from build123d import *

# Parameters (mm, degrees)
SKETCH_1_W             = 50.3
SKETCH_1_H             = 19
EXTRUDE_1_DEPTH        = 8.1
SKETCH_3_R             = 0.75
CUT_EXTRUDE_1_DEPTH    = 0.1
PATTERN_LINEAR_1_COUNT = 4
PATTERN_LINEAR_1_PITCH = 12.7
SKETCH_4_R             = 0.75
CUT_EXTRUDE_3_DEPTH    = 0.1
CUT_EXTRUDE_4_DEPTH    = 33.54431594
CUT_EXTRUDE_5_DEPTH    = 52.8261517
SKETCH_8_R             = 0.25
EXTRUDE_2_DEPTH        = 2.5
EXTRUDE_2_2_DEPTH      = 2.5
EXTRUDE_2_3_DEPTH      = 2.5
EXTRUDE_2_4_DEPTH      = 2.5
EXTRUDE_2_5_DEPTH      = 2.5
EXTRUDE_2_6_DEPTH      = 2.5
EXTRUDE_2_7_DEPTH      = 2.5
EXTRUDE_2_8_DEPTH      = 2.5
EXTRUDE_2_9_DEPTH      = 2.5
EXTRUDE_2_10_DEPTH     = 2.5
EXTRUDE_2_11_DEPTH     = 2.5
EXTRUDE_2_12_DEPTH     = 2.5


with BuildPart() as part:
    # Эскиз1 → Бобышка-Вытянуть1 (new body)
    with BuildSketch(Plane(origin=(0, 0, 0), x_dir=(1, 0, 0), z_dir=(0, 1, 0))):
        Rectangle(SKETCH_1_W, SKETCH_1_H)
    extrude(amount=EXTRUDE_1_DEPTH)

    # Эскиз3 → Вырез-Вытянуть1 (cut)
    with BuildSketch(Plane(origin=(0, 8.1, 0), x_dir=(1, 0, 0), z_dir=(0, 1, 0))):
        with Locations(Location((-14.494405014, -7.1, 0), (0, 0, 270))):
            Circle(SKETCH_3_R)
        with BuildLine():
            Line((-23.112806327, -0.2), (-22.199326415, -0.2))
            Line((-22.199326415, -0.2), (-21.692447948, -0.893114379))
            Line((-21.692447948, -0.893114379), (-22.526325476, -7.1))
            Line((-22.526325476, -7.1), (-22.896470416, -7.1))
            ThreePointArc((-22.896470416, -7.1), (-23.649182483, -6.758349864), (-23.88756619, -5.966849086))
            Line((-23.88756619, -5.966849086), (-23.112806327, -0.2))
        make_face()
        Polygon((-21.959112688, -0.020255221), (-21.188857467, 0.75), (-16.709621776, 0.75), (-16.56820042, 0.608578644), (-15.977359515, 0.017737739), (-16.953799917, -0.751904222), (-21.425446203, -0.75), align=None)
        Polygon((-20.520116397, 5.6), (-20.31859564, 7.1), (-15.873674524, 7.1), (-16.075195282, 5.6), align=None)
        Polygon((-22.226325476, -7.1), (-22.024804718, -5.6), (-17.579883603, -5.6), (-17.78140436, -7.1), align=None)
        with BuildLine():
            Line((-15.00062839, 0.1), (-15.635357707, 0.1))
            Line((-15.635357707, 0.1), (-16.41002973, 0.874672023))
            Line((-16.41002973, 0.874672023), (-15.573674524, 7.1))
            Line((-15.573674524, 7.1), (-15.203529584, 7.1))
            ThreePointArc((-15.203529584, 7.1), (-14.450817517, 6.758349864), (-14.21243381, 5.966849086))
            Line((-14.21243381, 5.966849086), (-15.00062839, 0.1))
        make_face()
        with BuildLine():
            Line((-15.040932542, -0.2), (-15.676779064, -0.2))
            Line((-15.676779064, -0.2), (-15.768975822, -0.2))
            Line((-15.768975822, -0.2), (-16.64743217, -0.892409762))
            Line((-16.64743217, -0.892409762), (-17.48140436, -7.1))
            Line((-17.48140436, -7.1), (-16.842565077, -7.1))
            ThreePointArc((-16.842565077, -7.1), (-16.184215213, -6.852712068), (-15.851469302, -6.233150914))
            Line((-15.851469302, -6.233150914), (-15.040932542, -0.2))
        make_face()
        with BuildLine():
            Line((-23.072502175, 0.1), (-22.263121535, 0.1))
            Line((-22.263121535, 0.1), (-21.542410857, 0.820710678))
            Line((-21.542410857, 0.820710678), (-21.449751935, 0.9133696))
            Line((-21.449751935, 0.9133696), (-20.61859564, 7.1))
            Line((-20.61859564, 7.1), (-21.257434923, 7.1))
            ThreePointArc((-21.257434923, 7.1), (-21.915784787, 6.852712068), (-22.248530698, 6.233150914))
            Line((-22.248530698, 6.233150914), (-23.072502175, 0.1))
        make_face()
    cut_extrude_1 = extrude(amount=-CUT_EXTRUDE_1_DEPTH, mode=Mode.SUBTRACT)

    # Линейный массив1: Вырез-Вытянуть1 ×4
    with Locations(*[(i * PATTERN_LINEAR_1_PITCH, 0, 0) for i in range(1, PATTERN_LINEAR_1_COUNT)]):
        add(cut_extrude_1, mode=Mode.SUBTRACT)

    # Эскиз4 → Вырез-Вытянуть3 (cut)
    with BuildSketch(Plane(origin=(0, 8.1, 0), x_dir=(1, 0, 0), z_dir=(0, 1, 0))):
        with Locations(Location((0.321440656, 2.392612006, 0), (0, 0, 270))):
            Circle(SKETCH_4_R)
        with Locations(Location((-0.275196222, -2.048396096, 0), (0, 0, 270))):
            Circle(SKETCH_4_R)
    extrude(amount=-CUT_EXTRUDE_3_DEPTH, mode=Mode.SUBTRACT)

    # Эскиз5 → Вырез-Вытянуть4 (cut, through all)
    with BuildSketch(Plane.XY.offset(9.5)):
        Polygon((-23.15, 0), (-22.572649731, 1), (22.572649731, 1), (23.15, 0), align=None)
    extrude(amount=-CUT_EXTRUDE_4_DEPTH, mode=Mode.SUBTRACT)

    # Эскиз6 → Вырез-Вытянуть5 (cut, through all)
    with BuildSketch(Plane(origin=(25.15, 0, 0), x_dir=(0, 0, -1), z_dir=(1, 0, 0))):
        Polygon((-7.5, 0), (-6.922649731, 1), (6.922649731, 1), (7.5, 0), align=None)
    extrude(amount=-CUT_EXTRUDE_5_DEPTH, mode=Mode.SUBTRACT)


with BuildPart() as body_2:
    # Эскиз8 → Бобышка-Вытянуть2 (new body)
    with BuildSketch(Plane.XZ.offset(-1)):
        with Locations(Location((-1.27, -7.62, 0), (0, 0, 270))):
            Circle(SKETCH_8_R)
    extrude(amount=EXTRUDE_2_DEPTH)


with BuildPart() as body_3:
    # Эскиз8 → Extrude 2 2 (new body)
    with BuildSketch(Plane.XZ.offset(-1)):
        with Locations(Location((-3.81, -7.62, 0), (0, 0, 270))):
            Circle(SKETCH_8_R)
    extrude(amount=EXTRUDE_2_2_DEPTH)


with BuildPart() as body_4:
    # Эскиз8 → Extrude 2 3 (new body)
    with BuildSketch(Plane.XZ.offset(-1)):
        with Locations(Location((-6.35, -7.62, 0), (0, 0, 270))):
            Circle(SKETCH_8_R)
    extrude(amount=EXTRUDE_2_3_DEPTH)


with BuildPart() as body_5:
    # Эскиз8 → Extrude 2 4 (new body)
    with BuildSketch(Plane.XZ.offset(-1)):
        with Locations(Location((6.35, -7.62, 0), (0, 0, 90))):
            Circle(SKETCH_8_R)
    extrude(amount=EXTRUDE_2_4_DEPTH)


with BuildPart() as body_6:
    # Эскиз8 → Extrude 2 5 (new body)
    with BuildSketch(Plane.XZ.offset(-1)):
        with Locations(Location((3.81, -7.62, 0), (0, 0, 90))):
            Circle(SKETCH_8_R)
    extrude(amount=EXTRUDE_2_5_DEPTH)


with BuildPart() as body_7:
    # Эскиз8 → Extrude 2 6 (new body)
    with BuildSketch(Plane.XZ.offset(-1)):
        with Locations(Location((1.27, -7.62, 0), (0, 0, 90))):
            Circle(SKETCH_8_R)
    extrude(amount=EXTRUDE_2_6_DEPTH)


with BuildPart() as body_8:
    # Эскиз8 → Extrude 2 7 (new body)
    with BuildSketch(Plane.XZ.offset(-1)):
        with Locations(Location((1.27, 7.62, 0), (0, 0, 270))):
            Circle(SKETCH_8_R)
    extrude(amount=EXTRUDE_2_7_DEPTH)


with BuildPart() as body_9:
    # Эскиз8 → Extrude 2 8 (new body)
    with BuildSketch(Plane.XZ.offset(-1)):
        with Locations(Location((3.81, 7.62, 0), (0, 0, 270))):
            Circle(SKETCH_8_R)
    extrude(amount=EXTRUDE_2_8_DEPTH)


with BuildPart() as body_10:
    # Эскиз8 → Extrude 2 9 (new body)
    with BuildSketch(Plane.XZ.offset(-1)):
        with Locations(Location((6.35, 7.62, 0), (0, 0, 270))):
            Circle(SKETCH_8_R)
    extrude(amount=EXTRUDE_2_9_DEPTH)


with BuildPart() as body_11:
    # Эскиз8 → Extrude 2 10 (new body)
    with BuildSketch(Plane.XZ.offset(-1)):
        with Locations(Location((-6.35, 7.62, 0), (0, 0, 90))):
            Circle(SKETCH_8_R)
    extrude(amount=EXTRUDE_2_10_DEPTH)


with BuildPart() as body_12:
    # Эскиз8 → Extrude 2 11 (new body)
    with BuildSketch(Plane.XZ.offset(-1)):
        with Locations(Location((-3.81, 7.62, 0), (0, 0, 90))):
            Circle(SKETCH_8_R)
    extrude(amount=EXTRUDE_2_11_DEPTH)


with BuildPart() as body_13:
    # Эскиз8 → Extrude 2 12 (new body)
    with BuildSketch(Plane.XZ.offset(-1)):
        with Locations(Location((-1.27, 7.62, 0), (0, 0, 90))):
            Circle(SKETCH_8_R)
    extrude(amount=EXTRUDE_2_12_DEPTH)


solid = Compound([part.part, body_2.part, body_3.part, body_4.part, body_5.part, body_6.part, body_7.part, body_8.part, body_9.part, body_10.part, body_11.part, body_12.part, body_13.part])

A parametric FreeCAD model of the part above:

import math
import FreeCAD as App
import Part
import Sketcher
from FreeCAD import Vector
Q = App.Units.Quantity


def add_polygon(sketch, points):
    """Adds a closed chain of lines whose ends are joined by coincident constraints."""
    first, n = sketch.GeometryCount, len(points)
    for a, b in zip(points, points[1:] + points[:1]):
        sketch.addGeometry(Part.LineSegment(App.Vector(*a, 0), App.Vector(*b, 0)), False)
    for i in range(n):
        sketch.addConstraint(Sketcher.Constraint("Coincident", first + i, 2, first + (i + 1) % n, 1))

doc = App.newDocument("Part")
params = doc.addObject("Spreadsheet::Sheet", "Params")
for row, (alias, value) in enumerate([
    ("sketch1_height", "19 mm"),
    ("sketch1_width", "50.3 mm"),
    ("pad1_length", "8.1 mm"),
    ("sketch2_radius", "1 mm"),
    ("sketch2_diameter", "1.5 mm"),
    ("pocket1_length", "0.1 mm"),
    ("linearpattern_pitch", "12.7 mm"),
    ("sketch3_diameter", "1.5 mm"),
    ("pocket2_length", "0.1 mm"),
    ("sketch4_width", "46.3 mm"),
    ("sketch5_height", "15 mm"),
    ("sketch6_diameter", "0.5 mm"),
    ("pad2_length", "2.5 mm"),
    ("sketch7_diameter", "0.5 mm"),
    ("pad3_length", "2.5 mm"),
    ("sketch8_diameter", "0.5 mm"),
    ("pad4_length", "2.5 mm"),
    ("sketch9_diameter", "0.5 mm"),
    ("pad5_length", "2.5 mm"),
    ("sketch10_diameter", "0.5 mm"),
    ("pad6_length", "2.5 mm"),
    ("sketch11_diameter", "0.5 mm"),
    ("pad7_length", "2.5 mm"),
    ("sketch12_diameter", "0.5 mm"),
    ("pad8_length", "2.5 mm"),
    ("sketch13_diameter", "0.5 mm"),
    ("pad9_length", "2.5 mm"),
    ("sketch14_diameter", "0.5 mm"),
    ("pad10_length", "2.5 mm"),
    ("sketch15_diameter", "0.5 mm"),
    ("pad11_length", "2.5 mm"),
    ("sketch16_diameter", "0.5 mm"),
    ("pad12_length", "2.5 mm"),
    ("sketch17_diameter", "0.5 mm"),
    ("pad13_length", "2.5 mm"),
], start=1):
    params.set(f"A{row}", alias)
    params.set(f"B{row}", "=" + value)
    params.setAlias(f"B{row}", alias)

body = doc.addObject("PartDesign::Body", "Body")

# Sketch on XZ plane
sketch1 = body.newObject("Sketcher::SketchObject", "Sketch")
sketch1.AttachmentSupport = (doc.getObject("XZ_Plane"), [""])
sketch1.MapMode = "FlatFace"
add_polygon(sketch1, [(-25.15, -9.5), (-25.15, 9.5), (25.15, 9.5), (25.15, -9.5)])  # lines 0-3
sketch1.addConstraint([
    Sketcher.Constraint("Vertical", 0),
    Sketcher.Constraint("Horizontal", 1),
    Sketcher.Constraint("Vertical", 2),
    Sketcher.Constraint("Horizontal", 3),
    Sketcher.Constraint("Symmetric", 0, 2, 2, 2, -1, 1),
    Sketcher.Constraint("DistanceY", 0, 1, 0, 2, Q("19 mm")),
    Sketcher.Constraint("DistanceX", 1, 1, 1, 2, Q("50.3 mm")),
])
sketch1.setExpression("Constraints[9]", "Params.sketch1_height")
sketch1.setExpression("Constraints[10]", "Params.sketch1_width")
pad1 = body.newObject("PartDesign::Pad", "Pad")
pad1.Profile = sketch1
pad1.setExpression("Length", "Params.pad1_length")
pad1.Reversed = True

# Sketch on XZ plane
sketch2 = body.newObject("Sketcher::SketchObject", "Sketch001")
sketch2.AttachmentSupport = (doc.getObject("XZ_Plane"), [""])
sketch2.MapMode = "FlatFace"
sketch2.AttachmentOffset = App.Placement(Vector(0, 0, -8.1), App.Rotation())
sketch2.addGeometry(Part.Circle(Vector(-14.494405, 7.1, 0), Vector(0, 0, 1), 0.75), False)  # 0
sketch2.addGeometry(Part.LineSegment(Vector(-22.199326, 0.2, 0), Vector(-23.112806, 0.2, 0)), False)  # 1
sketch2.addGeometry(Part.LineSegment(Vector(-23.112806, 0.2, 0), Vector(-23.887566, 5.966849, 0)), False)  # 2
sketch2.addGeometry(Part.ArcOfCircle(Part.Circle(Vector(-22.89647, 6.1, 0), Vector(0, 0, 1), 1), math.radians(90), math.radians(187.65171)), False)  # 3
sketch2.addGeometry(Part.LineSegment(Vector(-22.89647, 7.1, 0), Vector(-22.526325, 7.1, 0)), False)  # 4
sketch2.addGeometry(Part.LineSegment(Vector(-22.526325, 7.1, 0), Vector(-21.692448, 0.893114, 0)), False)  # 5
sketch2.addGeometry(Part.LineSegment(Vector(-21.692448, 0.893114, 0), Vector(-22.199326, 0.2, 0)), False)  # 6
add_polygon(sketch2, [(-21.188857, -0.75), (-21.959113, 0.020255), (-21.425446, 0.75), (-16.9538, 0.751904), (-15.97736, -0.017738), (-16.709622, -0.75)])  # lines 7-12
add_polygon(sketch2, [(-20.318596, -7.1), (-20.520116, -5.6), (-16.075195, -5.6), (-15.873675, -7.1)])  # lines 13-16
add_polygon(sketch2, [(-22.024805, 5.6), (-22.226325, 7.1), (-17.781404, 7.1), (-17.579884, 5.6)])  # lines 17-20
sketch2.addGeometry(Part.LineSegment(Vector(-15.635358, -0.1, 0), Vector(-15.000628, -0.1, 0)), False)  # 21
sketch2.addGeometry(Part.LineSegment(Vector(-15.000628, -0.1, 0), Vector(-14.212434, -5.966849, 0)), False)  # 22
sketch2.addGeometry(Part.ArcOfCircle(Part.Circle(Vector(-15.20353, -6.1, 0), Vector(0, 0, 1), 1), math.radians(-90), math.radians(7.65171)), False)  # 23
sketch2.addGeometry(Part.LineSegment(Vector(-15.20353, -7.1, 0), Vector(-15.573675, -7.1, 0)), False)  # 24
sketch2.addGeometry(Part.LineSegment(Vector(-15.573675, -7.1, 0), Vector(-16.41003, -0.874672, 0)), False)  # 25
sketch2.addGeometry(Part.LineSegment(Vector(-16.41003, -0.874672, 0), Vector(-15.635358, -0.1, 0)), False)  # 26
sketch2.addGeometry(Part.LineSegment(Vector(-15.040933, 0.2, 0), Vector(-15.768976, 0.2, 0)), False)  # 27
sketch2.addGeometry(Part.LineSegment(Vector(-15.768976, 0.2, 0), Vector(-16.647432, 0.89241, 0)), False)  # 28
sketch2.addGeometry(Part.LineSegment(Vector(-16.647432, 0.89241, 0), Vector(-17.481404, 7.1, 0)), False)  # 29
sketch2.addGeometry(Part.LineSegment(Vector(-17.481404, 7.1, 0), Vector(-16.842565, 7.1, 0)), False)  # 30
sketch2.addGeometry(Part.ArcOfCircle(Part.Circle(Vector(-16.842565, 6.1, 0), Vector(0, 0, 1), 1), math.radians(7.65171), math.radians(90)), False)  # 31
sketch2.addGeometry(Part.LineSegment(Vector(-15.851469, 6.233151, 0), Vector(-15.040933, 0.2, 0)), False)  # 32
sketch2.addGeometry(Part.LineSegment(Vector(-23.072502, -0.1, 0), Vector(-22.263122, -0.1, 0)), False)  # 33
sketch2.addGeometry(Part.LineSegment(Vector(-22.263122, -0.1, 0), Vector(-21.449752, -0.91337, 0)), False)  # 34
sketch2.addGeometry(Part.LineSegment(Vector(-21.449752, -0.91337, 0), Vector(-20.618596, -7.1, 0)), False)  # 35
sketch2.addGeometry(Part.LineSegment(Vector(-20.618596, -7.1, 0), Vector(-21.257435, -7.1, 0)), False)  # 36
sketch2.addGeometry(Part.ArcOfCircle(Part.Circle(Vector(-21.257435, -6.1, 0), Vector(0, 0, 1), 1), math.radians(-172.34829), math.radians(-90)), False)  # 37
sketch2.addGeometry(Part.LineSegment(Vector(-22.248531, -6.233151, 0), Vector(-23.072502, -0.1, 0)), False)  # 38
sketch2.addConstraint([
    Sketcher.Constraint("Coincident", 1, 2, 2, 1),
    Sketcher.Constraint("Tangent", 2, 2, 3, 2),
    Sketcher.Constraint("Tangent", 3, 1, 4, 1),
    Sketcher.Constraint("Coincident", 4, 2, 5, 1),
    Sketcher.Constraint("Coincident", 5, 2, 6, 1),
    Sketcher.Constraint("Coincident", 6, 2, 1, 1),
    Sketcher.Constraint("Coincident", 21, 2, 22, 1),
    Sketcher.Constraint("Tangent", 22, 2, 23, 2),
    Sketcher.Constraint("Tangent", 23, 1, 24, 1),
    Sketcher.Constraint("Coincident", 24, 2, 25, 1),
    Sketcher.Constraint("Coincident", 25, 2, 26, 1),
    Sketcher.Constraint("Coincident", 26, 2, 21, 1),
    Sketcher.Constraint("Coincident", 27, 2, 28, 1),
    Sketcher.Constraint("Coincident", 28, 2, 29, 1),
    Sketcher.Constraint("Coincident", 29, 2, 30, 1),
    Sketcher.Constraint("Tangent", 30, 2, 31, 2),
    Sketcher.Constraint("Tangent", 31, 1, 32, 1),
    Sketcher.Constraint("Coincident", 32, 2, 27, 1),
    Sketcher.Constraint("Coincident", 33, 2, 34, 1),
    Sketcher.Constraint("Coincident", 34, 2, 35, 1),
    Sketcher.Constraint("Coincident", 35, 2, 36, 1),
    Sketcher.Constraint("Tangent", 36, 2, 37, 2),
    Sketcher.Constraint("Tangent", 37, 1, 38, 1),
    Sketcher.Constraint("Coincident", 38, 2, 33, 1),
    Sketcher.Constraint("Horizontal", 1),
    Sketcher.Constraint("Horizontal", 4),
    Sketcher.Constraint("Horizontal", 12),
    Sketcher.Constraint("Horizontal", 14),
    Sketcher.Constraint("Horizontal", 16),
    Sketcher.Constraint("Horizontal", 18),
    Sketcher.Constraint("Horizontal", 20),
    Sketcher.Constraint("Horizontal", 21),
    Sketcher.Constraint("Horizontal", 24),
    Sketcher.Constraint("Horizontal", 27),
    Sketcher.Constraint("Horizontal", 30),
    Sketcher.Constraint("Horizontal", 33),
    Sketcher.Constraint("Horizontal", 36),
    Sketcher.Constraint("Equal", 3, 23),
    Sketcher.Constraint("Equal", 23, 31),
    Sketcher.Constraint("Equal", 31, 37),
    Sketcher.Constraint("Parallel", 2, 5),
    Sketcher.Constraint("Parallel", 6, 8),
    Sketcher.Constraint("Perpendicular", 7, 11),
    Sketcher.Constraint("Parallel", 5, 13),
    Sketcher.Constraint("Parallel", 13, 15),
    Sketcher.Constraint("Parallel", 15, 17),
    Sketcher.Constraint("Parallel", 17, 19),
    Sketcher.Constraint("Parallel", 19, 22),
    Sketcher.Constraint("Parallel", 22, 25),
    Sketcher.Constraint("Parallel", 11, 26),
    Sketcher.Constraint("Parallel", 10, 28),
    Sketcher.Constraint("Parallel", 25, 29),
    Sketcher.Constraint("Parallel", 29, 32),
    Sketcher.Constraint("Perpendicular", 26, 34),
    Sketcher.Constraint("Parallel", 32, 35),
    Sketcher.Constraint("Parallel", 35, 38),
    Sketcher.Constraint("Horizontal", 3, 3, 31, 3),
    Sketcher.Constraint("Horizontal", 23, 3, 37, 3),
    Sketcher.Constraint("Horizontal", 0, 3, 3, 1),
    Sketcher.Constraint("Horizontal", 4, 2, 17, 2),
    Sketcher.Constraint("Horizontal", 16, 2, 23, 1),
    Sketcher.Constraint("Horizontal", 6, 2, 27, 2),
    Sketcher.Constraint("Horizontal", 26, 2, 33, 2),
    Sketcher.Constraint("Equal", 16, 18),
    Sketcher.Constraint("Equal", 4, 24),
    Sketcher.Constraint("Equal", 30, 36),
    Sketcher.Constraint("Equal", 15, 17),
    Sketcher.Constraint("Radius", 3, Q("1 mm")),
    Sketcher.Constraint("Diameter", 0, Q("1.5 mm")),
    Sketcher.Constraint("Angle", 7, Q("135 deg")),
    Sketcher.Constraint("DistanceY", 23, 3, 21, 2, Q("6 mm")),
    Sketcher.Constraint("DistanceY", -1, 1, 0, 3, Q("7.1 mm")),
    Sketcher.Constraint("DistanceY", 23, 3, -1, 1, Q("6.1 mm")),
    Sketcher.Constraint("DistanceY", -1, 1, 1, 2, Q("0.2 mm")),
    Sketcher.Constraint("DistanceY", 13, 2, -1, 1, Q("5.6 mm")),
    Sketcher.Constraint("DistanceY", 11, 2, 8, 2, Q("1.5 mm")),
    Sketcher.Constraint("DistanceX", 4, 2, 17, 2, Q("0.3 mm")),
    Sketcher.Constraint("DistanceX", 15, 2, 24, 2, Q("0.3 mm")),
    Sketcher.Constraint("DistanceX", 18, 2, 29, 2, Q("0.3 mm")),
    Sketcher.Constraint("DistanceX", 35, 2, 16, 2, Q("0.3 mm")),
    Sketcher.Constraint("DistanceY", -1, 1, 8, 2, Q("0.75 mm")),
    Sketcher.Constraint("DistanceX", 2, 2, 31, 3, Q("7.045001 mm")),
    Sketcher.Constraint("DistanceX", 5, 2, 8, 2, Q("0.267002 mm")),
    Sketcher.Constraint("DistanceX", 18, 2, 0, 3, Q("3.286999 mm")),
    Sketcher.Constraint("DistanceX", 10, 2, 26, 2, Q("0.342002 mm")),
    Sketcher.Constraint("DistanceX", 1, 2, 1, 1, Q("0.91348 mm")),
    Sketcher.Constraint("DistanceX", 14, 1, 14, 2, Q("4.444921 mm")),
    Sketcher.Constraint("DistanceX", 21, 1, 21, 2, Q("0.634729 mm")),
    Sketcher.Constraint("DistanceX", 30, 1, 30, 2, Q("0.638839 mm")),
    Sketcher.Constraint("DistanceX", 33, 1, 33, 2, Q("0.809381 mm")),
    Sketcher.Constraint("DistanceX", 9, 2, -1, 1, Q("16.9538 mm")),
    Sketcher.Constraint("DistanceX", 1, 2, 0, 3, Q("8.618401 mm")),
    Sketcher.Constraint("Distance", 5, Q("6.26265 mm")),
    Sketcher.Constraint("Distance", 8, Q("0.904062 mm")),
    Sketcher.Constraint("Distance", 29, Q("6.263361 mm")),
    Sketcher.Constraint("DistanceX", 12, 2, 12, 1, Q("4.479236 mm")),
    Sketcher.Constraint("DistanceX", 27, 2, 27, 1, Q("0.728043 mm")),
    Sketcher.Constraint("DistanceX", 3, 3, -1, 1, Q("22.89647 mm")),
    Sketcher.Constraint("DistanceX", 23, 3, -1, 1, Q("15.20353 mm")),
])
sketch2.setExpression("Constraints[81]", "Params.sketch2_radius")
sketch2.setExpression("Constraints[82]", "Params.sketch2_diameter")
pocket1 = body.newObject("PartDesign::Pocket", "Pocket")
pocket1.Profile = sketch2
pocket1.setExpression("Length", "Params.pocket1_length")
pocket1.Reversed = True
doc.recompute()

linearpattern = body.newObject("PartDesign::LinearPattern", "LinearPattern")
linearpattern.Originals = [pocket1]
linearpattern.Direction = (doc.getObject("X_Axis"), [""])
linearpattern.Mode = "offset"
linearpattern.setExpression("Offset", "Params.linearpattern_pitch")
linearpattern.Occurrences = 4
body.Tip = linearpattern

# Sketch on XZ plane
sketch3 = body.newObject("Sketcher::SketchObject", "Sketch002")
sketch3.AttachmentSupport = (doc.getObject("XZ_Plane"), [""])
sketch3.MapMode = "FlatFace"
sketch3.AttachmentOffset = App.Placement(Vector(0, 0, -8.1), App.Rotation())
sketch3.addGeometry([
    Part.Circle(Vector(0.321441, -2.392612, 0), Vector(0, 0, 1), 0.75),
    Part.Circle(Vector(-0.275196, 2.048396, 0), Vector(0, 0, 1), 0.75),
], False)
sketch3.addConstraint([
    Sketcher.Constraint("Equal", 0, 1),
    Sketcher.Constraint("Diameter", 0, Q("1.5 mm")),
    Sketcher.Constraint("DistanceX", -1, 1, 0, 3, Q("0.321441 mm")),
    Sketcher.Constraint("DistanceY", 0, 3, 1, 3, Q("4.441008 mm")),
    Sketcher.Constraint("DistanceY", 0, 3, -1, 1, Q("2.392612 mm")),
    Sketcher.Constraint("DistanceX", 1, 3, -1, 1, Q("0.275196 mm")),
])
sketch3.setExpression("Constraints[1]", "Params.sketch3_diameter")
pocket2 = body.newObject("PartDesign::Pocket", "Pocket001")
pocket2.Profile = sketch3
pocket2.setExpression("Length", "Params.pocket2_length")
pocket2.Reversed = True

# Sketch on XY plane
sketch4 = body.newObject("Sketcher::SketchObject", "Sketch003")
sketch4.AttachmentSupport = (doc.getObject("XY_Plane"), [""])
sketch4.MapMode = "FlatFace"
sketch4.AttachmentOffset = App.Placement(Vector(0, 0, 9.5), App.Rotation())
add_polygon(sketch4, [(-22.57265, 1), (-23.15, 0), (23.15, 0), (22.57265, 1)])  # lines 0-3
sketch4.addConstraint([
    Sketcher.Constraint("Horizontal", 1),
    Sketcher.Constraint("Horizontal", 3),
    Sketcher.Constraint("Symmetric", 0, 2, 1, 2, -1, 1),
    Sketcher.Constraint("Equal", 0, 2),
    Sketcher.Constraint("Angle", 0, Q("-120 deg")),
    Sketcher.Constraint("DistanceX", 1, 1, 1, 2, Q("46.3 mm")),
    Sketcher.Constraint("DistanceY", -1, 1, 2, 2, Q("1 mm")),
])
sketch4.setExpression("Constraints[9]", "Params.sketch4_width")
pocket3 = body.newObject("PartDesign::Pocket", "Pocket002")
pocket3.Profile = sketch4
pocket3.Type = "ThroughAll"

# Sketch on YZ plane
sketch5 = body.newObject("Sketcher::SketchObject", "Sketch004")
sketch5.AttachmentSupport = (doc.getObject("YZ_Plane"), [""])
sketch5.MapMode = "FlatFace"
sketch5.AttachmentOffset = App.Placement(Vector(0, 0, 25.15), App.Rotation())
add_polygon(sketch5, [(1, 6.92265), (0, 7.5), (0, -7.5), (1, -6.92265)])  # lines 0-3
sketch5.addConstraint([
    Sketcher.Constraint("Vertical", 1),
    Sketcher.Constraint("Vertical", 3),
    Sketcher.Constraint("Symmetric", 0, 2, 1, 2, -1, 1),
    Sketcher.Constraint("Equal", 0, 2),
    Sketcher.Constraint("DistanceY", 1, 2, 1, 1, Q("15 mm")),
    Sketcher.Constraint("Angle", 0, Q("150 deg")),
    Sketcher.Constraint("DistanceX", -1, 1, 2, 2, Q("1 mm")),
])
sketch5.setExpression("Constraints[8]", "Params.sketch5_height")
pocket4 = body.newObject("PartDesign::Pocket", "Pocket003")
pocket4.Profile = sketch5
pocket4.Type = "ThroughAll"
body2 = doc.addObject("PartDesign::Body", "Body001")

# Sketch on XZ plane
sketch6 = body2.newObject("Sketcher::SketchObject", "Sketch005")
sketch6.AttachmentSupport = (doc.getObject("XZ_Plane001"), [""])
sketch6.MapMode = "FlatFace"
sketch6.AttachmentOffset = App.Placement(Vector(0, 0, -1), App.Rotation())
sketch6.addGeometry(Part.Circle(Vector(-1.27, -7.62, 0), Vector(0, 0, 1), 0.25), False)
sketch6.addConstraint([
    Sketcher.Constraint("Diameter", 0, Q("0.5 mm")),
    Sketcher.Constraint("DistanceX", 0, 3, -1, 1, Q("1.27 mm")),
    Sketcher.Constraint("DistanceY", 0, 3, -1, 1, Q("7.62 mm")),
])
sketch6.setExpression("Constraints[0]", "Params.sketch6_diameter")
pad2 = body2.newObject("PartDesign::Pad", "Pad001")
pad2.Profile = sketch6
pad2.setExpression("Length", "Params.pad2_length")
body3 = doc.addObject("PartDesign::Body", "Body002")

# Sketch on XZ plane
sketch7 = body3.newObject("Sketcher::SketchObject", "Sketch006")
sketch7.AttachmentSupport = (doc.getObject("XZ_Plane002"), [""])
sketch7.MapMode = "FlatFace"
sketch7.AttachmentOffset = App.Placement(Vector(0, 0, -1), App.Rotation())
sketch7.addGeometry(Part.Circle(Vector(-3.81, -7.62, 0), Vector(0, 0, 1), 0.25), False)
sketch7.addConstraint([
    Sketcher.Constraint("Diameter", 0, Q("0.5 mm")),
    Sketcher.Constraint("DistanceX", 0, 3, -1, 1, Q("3.81 mm")),
    Sketcher.Constraint("DistanceY", 0, 3, -1, 1, Q("7.62 mm")),
])
sketch7.setExpression("Constraints[0]", "Params.sketch7_diameter")
pad3 = body3.newObject("PartDesign::Pad", "Pad002")
pad3.Profile = sketch7
pad3.setExpression("Length", "Params.pad3_length")
body4 = doc.addObject("PartDesign::Body", "Body003")

# Sketch on XZ plane
sketch8 = body4.newObject("Sketcher::SketchObject", "Sketch007")
sketch8.AttachmentSupport = (doc.getObject("XZ_Plane003"), [""])
sketch8.MapMode = "FlatFace"
sketch8.AttachmentOffset = App.Placement(Vector(0, 0, -1), App.Rotation())
sketch8.addGeometry(Part.Circle(Vector(-6.35, -7.62, 0), Vector(0, 0, 1), 0.25), False)
sketch8.addConstraint([
    Sketcher.Constraint("Diameter", 0, Q("0.5 mm")),
    Sketcher.Constraint("DistanceX", 0, 3, -1, 1, Q("6.35 mm")),
    Sketcher.Constraint("DistanceY", 0, 3, -1, 1, Q("7.62 mm")),
])
sketch8.setExpression("Constraints[0]", "Params.sketch8_diameter")
pad4 = body4.newObject("PartDesign::Pad", "Pad003")
pad4.Profile = sketch8
pad4.setExpression("Length", "Params.pad4_length")
body5 = doc.addObject("PartDesign::Body", "Body004")

# Sketch on XZ plane
sketch9 = body5.newObject("Sketcher::SketchObject", "Sketch008")
sketch9.AttachmentSupport = (doc.getObject("XZ_Plane004"), [""])
sketch9.MapMode = "FlatFace"
sketch9.AttachmentOffset = App.Placement(Vector(0, 0, -1), App.Rotation())
sketch9.addGeometry(Part.Circle(Vector(6.35, -7.62, 0), Vector(0, 0, 1), 0.25), False)
sketch9.addConstraint([
    Sketcher.Constraint("Diameter", 0, Q("0.5 mm")),
    Sketcher.Constraint("DistanceX", -1, 1, 0, 3, Q("6.35 mm")),
    Sketcher.Constraint("DistanceY", 0, 3, -1, 1, Q("7.62 mm")),
])
sketch9.setExpression("Constraints[0]", "Params.sketch9_diameter")
pad5 = body5.newObject("PartDesign::Pad", "Pad004")
pad5.Profile = sketch9
pad5.setExpression("Length", "Params.pad5_length")
body6 = doc.addObject("PartDesign::Body", "Body005")

# Sketch on XZ plane
sketch10 = body6.newObject("Sketcher::SketchObject", "Sketch009")
sketch10.AttachmentSupport = (doc.getObject("XZ_Plane005"), [""])
sketch10.MapMode = "FlatFace"
sketch10.AttachmentOffset = App.Placement(Vector(0, 0, -1), App.Rotation())
sketch10.addGeometry(Part.Circle(Vector(3.81, -7.62, 0), Vector(0, 0, 1), 0.25), False)
sketch10.addConstraint([
    Sketcher.Constraint("Diameter", 0, Q("0.5 mm")),
    Sketcher.Constraint("DistanceX", -1, 1, 0, 3, Q("3.81 mm")),
    Sketcher.Constraint("DistanceY", 0, 3, -1, 1, Q("7.62 mm")),
])
sketch10.setExpression("Constraints[0]", "Params.sketch10_diameter")
pad6 = body6.newObject("PartDesign::Pad", "Pad005")
pad6.Profile = sketch10
pad6.setExpression("Length", "Params.pad6_length")
body7 = doc.addObject("PartDesign::Body", "Body006")

# Sketch on XZ plane
sketch11 = body7.newObject("Sketcher::SketchObject", "Sketch010")
sketch11.AttachmentSupport = (doc.getObject("XZ_Plane006"), [""])
sketch11.MapMode = "FlatFace"
sketch11.AttachmentOffset = App.Placement(Vector(0, 0, -1), App.Rotation())
sketch11.addGeometry(Part.Circle(Vector(1.27, -7.62, 0), Vector(0, 0, 1), 0.25), False)
sketch11.addConstraint([
    Sketcher.Constraint("Diameter", 0, Q("0.5 mm")),
    Sketcher.Constraint("DistanceX", -1, 1, 0, 3, Q("1.27 mm")),
    Sketcher.Constraint("DistanceY", 0, 3, -1, 1, Q("7.62 mm")),
])
sketch11.setExpression("Constraints[0]", "Params.sketch11_diameter")
pad7 = body7.newObject("PartDesign::Pad", "Pad006")
pad7.Profile = sketch11
pad7.setExpression("Length", "Params.pad7_length")
body8 = doc.addObject("PartDesign::Body", "Body007")

# Sketch on XZ plane
sketch12 = body8.newObject("Sketcher::SketchObject", "Sketch011")
sketch12.AttachmentSupport = (doc.getObject("XZ_Plane007"), [""])
sketch12.MapMode = "FlatFace"
sketch12.AttachmentOffset = App.Placement(Vector(0, 0, -1), App.Rotation())
sketch12.addGeometry(Part.Circle(Vector(1.27, 7.62, 0), Vector(0, 0, 1), 0.25), False)
sketch12.addConstraint([
    Sketcher.Constraint("Diameter", 0, Q("0.5 mm")),
    Sketcher.Constraint("DistanceX", -1, 1, 0, 3, Q("1.27 mm")),
    Sketcher.Constraint("DistanceY", -1, 1, 0, 3, Q("7.62 mm")),
])
sketch12.setExpression("Constraints[0]", "Params.sketch12_diameter")
pad8 = body8.newObject("PartDesign::Pad", "Pad007")
pad8.Profile = sketch12
pad8.setExpression("Length", "Params.pad8_length")
body9 = doc.addObject("PartDesign::Body", "Body008")

# Sketch on XZ plane
sketch13 = body9.newObject("Sketcher::SketchObject", "Sketch012")
sketch13.AttachmentSupport = (doc.getObject("XZ_Plane008"), [""])
sketch13.MapMode = "FlatFace"
sketch13.AttachmentOffset = App.Placement(Vector(0, 0, -1), App.Rotation())
sketch13.addGeometry(Part.Circle(Vector(3.81, 7.62, 0), Vector(0, 0, 1), 0.25), False)
sketch13.addConstraint([
    Sketcher.Constraint("Diameter", 0, Q("0.5 mm")),
    Sketcher.Constraint("DistanceX", -1, 1, 0, 3, Q("3.81 mm")),
    Sketcher.Constraint("DistanceY", -1, 1, 0, 3, Q("7.62 mm")),
])
sketch13.setExpression("Constraints[0]", "Params.sketch13_diameter")
pad9 = body9.newObject("PartDesign::Pad", "Pad008")
pad9.Profile = sketch13
pad9.setExpression("Length", "Params.pad9_length")
body10 = doc.addObject("PartDesign::Body", "Body009")

# Sketch on XZ plane
sketch14 = body10.newObject("Sketcher::SketchObject", "Sketch013")
sketch14.AttachmentSupport = (doc.getObject("XZ_Plane009"), [""])
sketch14.MapMode = "FlatFace"
sketch14.AttachmentOffset = App.Placement(Vector(0, 0, -1), App.Rotation())
sketch14.addGeometry(Part.Circle(Vector(6.35, 7.62, 0), Vector(0, 0, 1), 0.25), False)
sketch14.addConstraint([
    Sketcher.Constraint("Diameter", 0, Q("0.5 mm")),
    Sketcher.Constraint("DistanceX", -1, 1, 0, 3, Q("6.35 mm")),
    Sketcher.Constraint("DistanceY", -1, 1, 0, 3, Q("7.62 mm")),
])
sketch14.setExpression("Constraints[0]", "Params.sketch14_diameter")
pad10 = body10.newObject("PartDesign::Pad", "Pad009")
pad10.Profile = sketch14
pad10.setExpression("Length", "Params.pad10_length")
body11 = doc.addObject("PartDesign::Body", "Body010")

# Sketch on XZ plane
sketch15 = body11.newObject("Sketcher::SketchObject", "Sketch014")
sketch15.AttachmentSupport = (doc.getObject("XZ_Plane010"), [""])
sketch15.MapMode = "FlatFace"
sketch15.AttachmentOffset = App.Placement(Vector(0, 0, -1), App.Rotation())
sketch15.addGeometry(Part.Circle(Vector(-6.35, 7.62, 0), Vector(0, 0, 1), 0.25), False)
sketch15.addConstraint([
    Sketcher.Constraint("Diameter", 0, Q("0.5 mm")),
    Sketcher.Constraint("DistanceX", 0, 3, -1, 1, Q("6.35 mm")),
    Sketcher.Constraint("DistanceY", -1, 1, 0, 3, Q("7.62 mm")),
])
sketch15.setExpression("Constraints[0]", "Params.sketch15_diameter")
pad11 = body11.newObject("PartDesign::Pad", "Pad010")
pad11.Profile = sketch15
pad11.setExpression("Length", "Params.pad11_length")
body12 = doc.addObject("PartDesign::Body", "Body011")

# Sketch on XZ plane
sketch16 = body12.newObject("Sketcher::SketchObject", "Sketch015")
sketch16.AttachmentSupport = (doc.getObject("XZ_Plane011"), [""])
sketch16.MapMode = "FlatFace"
sketch16.AttachmentOffset = App.Placement(Vector(0, 0, -1), App.Rotation())
sketch16.addGeometry(Part.Circle(Vector(-3.81, 7.62, 0), Vector(0, 0, 1), 0.25), False)
sketch16.addConstraint([
    Sketcher.Constraint("Diameter", 0, Q("0.5 mm")),
    Sketcher.Constraint("DistanceX", 0, 3, -1, 1, Q("3.81 mm")),
    Sketcher.Constraint("DistanceY", -1, 1, 0, 3, Q("7.62 mm")),
])
sketch16.setExpression("Constraints[0]", "Params.sketch16_diameter")
pad12 = body12.newObject("PartDesign::Pad", "Pad011")
pad12.Profile = sketch16
pad12.setExpression("Length", "Params.pad12_length")
body13 = doc.addObject("PartDesign::Body", "Body012")

# Sketch on XZ plane
sketch17 = body13.newObject("Sketcher::SketchObject", "Sketch016")
sketch17.AttachmentSupport = (doc.getObject("XZ_Plane012"), [""])
sketch17.MapMode = "FlatFace"
sketch17.AttachmentOffset = App.Placement(Vector(0, 0, -1), App.Rotation())
sketch17.addGeometry(Part.Circle(Vector(-1.27, 7.62, 0), Vector(0, 0, 1), 0.25), False)
sketch17.addConstraint([
    Sketcher.Constraint("Diameter", 0, Q("0.5 mm")),
    Sketcher.Constraint("DistanceX", 0, 3, -1, 1, Q("1.27 mm")),
    Sketcher.Constraint("DistanceY", -1, 1, 0, 3, Q("7.62 mm")),
])
sketch17.setExpression("Constraints[0]", "Params.sketch17_diameter")
pad13 = body13.newObject("PartDesign::Pad", "Pad012")
pad13.Profile = sketch17
pad13.setExpression("Length", "Params.pad13_length")

doc.recompute()
